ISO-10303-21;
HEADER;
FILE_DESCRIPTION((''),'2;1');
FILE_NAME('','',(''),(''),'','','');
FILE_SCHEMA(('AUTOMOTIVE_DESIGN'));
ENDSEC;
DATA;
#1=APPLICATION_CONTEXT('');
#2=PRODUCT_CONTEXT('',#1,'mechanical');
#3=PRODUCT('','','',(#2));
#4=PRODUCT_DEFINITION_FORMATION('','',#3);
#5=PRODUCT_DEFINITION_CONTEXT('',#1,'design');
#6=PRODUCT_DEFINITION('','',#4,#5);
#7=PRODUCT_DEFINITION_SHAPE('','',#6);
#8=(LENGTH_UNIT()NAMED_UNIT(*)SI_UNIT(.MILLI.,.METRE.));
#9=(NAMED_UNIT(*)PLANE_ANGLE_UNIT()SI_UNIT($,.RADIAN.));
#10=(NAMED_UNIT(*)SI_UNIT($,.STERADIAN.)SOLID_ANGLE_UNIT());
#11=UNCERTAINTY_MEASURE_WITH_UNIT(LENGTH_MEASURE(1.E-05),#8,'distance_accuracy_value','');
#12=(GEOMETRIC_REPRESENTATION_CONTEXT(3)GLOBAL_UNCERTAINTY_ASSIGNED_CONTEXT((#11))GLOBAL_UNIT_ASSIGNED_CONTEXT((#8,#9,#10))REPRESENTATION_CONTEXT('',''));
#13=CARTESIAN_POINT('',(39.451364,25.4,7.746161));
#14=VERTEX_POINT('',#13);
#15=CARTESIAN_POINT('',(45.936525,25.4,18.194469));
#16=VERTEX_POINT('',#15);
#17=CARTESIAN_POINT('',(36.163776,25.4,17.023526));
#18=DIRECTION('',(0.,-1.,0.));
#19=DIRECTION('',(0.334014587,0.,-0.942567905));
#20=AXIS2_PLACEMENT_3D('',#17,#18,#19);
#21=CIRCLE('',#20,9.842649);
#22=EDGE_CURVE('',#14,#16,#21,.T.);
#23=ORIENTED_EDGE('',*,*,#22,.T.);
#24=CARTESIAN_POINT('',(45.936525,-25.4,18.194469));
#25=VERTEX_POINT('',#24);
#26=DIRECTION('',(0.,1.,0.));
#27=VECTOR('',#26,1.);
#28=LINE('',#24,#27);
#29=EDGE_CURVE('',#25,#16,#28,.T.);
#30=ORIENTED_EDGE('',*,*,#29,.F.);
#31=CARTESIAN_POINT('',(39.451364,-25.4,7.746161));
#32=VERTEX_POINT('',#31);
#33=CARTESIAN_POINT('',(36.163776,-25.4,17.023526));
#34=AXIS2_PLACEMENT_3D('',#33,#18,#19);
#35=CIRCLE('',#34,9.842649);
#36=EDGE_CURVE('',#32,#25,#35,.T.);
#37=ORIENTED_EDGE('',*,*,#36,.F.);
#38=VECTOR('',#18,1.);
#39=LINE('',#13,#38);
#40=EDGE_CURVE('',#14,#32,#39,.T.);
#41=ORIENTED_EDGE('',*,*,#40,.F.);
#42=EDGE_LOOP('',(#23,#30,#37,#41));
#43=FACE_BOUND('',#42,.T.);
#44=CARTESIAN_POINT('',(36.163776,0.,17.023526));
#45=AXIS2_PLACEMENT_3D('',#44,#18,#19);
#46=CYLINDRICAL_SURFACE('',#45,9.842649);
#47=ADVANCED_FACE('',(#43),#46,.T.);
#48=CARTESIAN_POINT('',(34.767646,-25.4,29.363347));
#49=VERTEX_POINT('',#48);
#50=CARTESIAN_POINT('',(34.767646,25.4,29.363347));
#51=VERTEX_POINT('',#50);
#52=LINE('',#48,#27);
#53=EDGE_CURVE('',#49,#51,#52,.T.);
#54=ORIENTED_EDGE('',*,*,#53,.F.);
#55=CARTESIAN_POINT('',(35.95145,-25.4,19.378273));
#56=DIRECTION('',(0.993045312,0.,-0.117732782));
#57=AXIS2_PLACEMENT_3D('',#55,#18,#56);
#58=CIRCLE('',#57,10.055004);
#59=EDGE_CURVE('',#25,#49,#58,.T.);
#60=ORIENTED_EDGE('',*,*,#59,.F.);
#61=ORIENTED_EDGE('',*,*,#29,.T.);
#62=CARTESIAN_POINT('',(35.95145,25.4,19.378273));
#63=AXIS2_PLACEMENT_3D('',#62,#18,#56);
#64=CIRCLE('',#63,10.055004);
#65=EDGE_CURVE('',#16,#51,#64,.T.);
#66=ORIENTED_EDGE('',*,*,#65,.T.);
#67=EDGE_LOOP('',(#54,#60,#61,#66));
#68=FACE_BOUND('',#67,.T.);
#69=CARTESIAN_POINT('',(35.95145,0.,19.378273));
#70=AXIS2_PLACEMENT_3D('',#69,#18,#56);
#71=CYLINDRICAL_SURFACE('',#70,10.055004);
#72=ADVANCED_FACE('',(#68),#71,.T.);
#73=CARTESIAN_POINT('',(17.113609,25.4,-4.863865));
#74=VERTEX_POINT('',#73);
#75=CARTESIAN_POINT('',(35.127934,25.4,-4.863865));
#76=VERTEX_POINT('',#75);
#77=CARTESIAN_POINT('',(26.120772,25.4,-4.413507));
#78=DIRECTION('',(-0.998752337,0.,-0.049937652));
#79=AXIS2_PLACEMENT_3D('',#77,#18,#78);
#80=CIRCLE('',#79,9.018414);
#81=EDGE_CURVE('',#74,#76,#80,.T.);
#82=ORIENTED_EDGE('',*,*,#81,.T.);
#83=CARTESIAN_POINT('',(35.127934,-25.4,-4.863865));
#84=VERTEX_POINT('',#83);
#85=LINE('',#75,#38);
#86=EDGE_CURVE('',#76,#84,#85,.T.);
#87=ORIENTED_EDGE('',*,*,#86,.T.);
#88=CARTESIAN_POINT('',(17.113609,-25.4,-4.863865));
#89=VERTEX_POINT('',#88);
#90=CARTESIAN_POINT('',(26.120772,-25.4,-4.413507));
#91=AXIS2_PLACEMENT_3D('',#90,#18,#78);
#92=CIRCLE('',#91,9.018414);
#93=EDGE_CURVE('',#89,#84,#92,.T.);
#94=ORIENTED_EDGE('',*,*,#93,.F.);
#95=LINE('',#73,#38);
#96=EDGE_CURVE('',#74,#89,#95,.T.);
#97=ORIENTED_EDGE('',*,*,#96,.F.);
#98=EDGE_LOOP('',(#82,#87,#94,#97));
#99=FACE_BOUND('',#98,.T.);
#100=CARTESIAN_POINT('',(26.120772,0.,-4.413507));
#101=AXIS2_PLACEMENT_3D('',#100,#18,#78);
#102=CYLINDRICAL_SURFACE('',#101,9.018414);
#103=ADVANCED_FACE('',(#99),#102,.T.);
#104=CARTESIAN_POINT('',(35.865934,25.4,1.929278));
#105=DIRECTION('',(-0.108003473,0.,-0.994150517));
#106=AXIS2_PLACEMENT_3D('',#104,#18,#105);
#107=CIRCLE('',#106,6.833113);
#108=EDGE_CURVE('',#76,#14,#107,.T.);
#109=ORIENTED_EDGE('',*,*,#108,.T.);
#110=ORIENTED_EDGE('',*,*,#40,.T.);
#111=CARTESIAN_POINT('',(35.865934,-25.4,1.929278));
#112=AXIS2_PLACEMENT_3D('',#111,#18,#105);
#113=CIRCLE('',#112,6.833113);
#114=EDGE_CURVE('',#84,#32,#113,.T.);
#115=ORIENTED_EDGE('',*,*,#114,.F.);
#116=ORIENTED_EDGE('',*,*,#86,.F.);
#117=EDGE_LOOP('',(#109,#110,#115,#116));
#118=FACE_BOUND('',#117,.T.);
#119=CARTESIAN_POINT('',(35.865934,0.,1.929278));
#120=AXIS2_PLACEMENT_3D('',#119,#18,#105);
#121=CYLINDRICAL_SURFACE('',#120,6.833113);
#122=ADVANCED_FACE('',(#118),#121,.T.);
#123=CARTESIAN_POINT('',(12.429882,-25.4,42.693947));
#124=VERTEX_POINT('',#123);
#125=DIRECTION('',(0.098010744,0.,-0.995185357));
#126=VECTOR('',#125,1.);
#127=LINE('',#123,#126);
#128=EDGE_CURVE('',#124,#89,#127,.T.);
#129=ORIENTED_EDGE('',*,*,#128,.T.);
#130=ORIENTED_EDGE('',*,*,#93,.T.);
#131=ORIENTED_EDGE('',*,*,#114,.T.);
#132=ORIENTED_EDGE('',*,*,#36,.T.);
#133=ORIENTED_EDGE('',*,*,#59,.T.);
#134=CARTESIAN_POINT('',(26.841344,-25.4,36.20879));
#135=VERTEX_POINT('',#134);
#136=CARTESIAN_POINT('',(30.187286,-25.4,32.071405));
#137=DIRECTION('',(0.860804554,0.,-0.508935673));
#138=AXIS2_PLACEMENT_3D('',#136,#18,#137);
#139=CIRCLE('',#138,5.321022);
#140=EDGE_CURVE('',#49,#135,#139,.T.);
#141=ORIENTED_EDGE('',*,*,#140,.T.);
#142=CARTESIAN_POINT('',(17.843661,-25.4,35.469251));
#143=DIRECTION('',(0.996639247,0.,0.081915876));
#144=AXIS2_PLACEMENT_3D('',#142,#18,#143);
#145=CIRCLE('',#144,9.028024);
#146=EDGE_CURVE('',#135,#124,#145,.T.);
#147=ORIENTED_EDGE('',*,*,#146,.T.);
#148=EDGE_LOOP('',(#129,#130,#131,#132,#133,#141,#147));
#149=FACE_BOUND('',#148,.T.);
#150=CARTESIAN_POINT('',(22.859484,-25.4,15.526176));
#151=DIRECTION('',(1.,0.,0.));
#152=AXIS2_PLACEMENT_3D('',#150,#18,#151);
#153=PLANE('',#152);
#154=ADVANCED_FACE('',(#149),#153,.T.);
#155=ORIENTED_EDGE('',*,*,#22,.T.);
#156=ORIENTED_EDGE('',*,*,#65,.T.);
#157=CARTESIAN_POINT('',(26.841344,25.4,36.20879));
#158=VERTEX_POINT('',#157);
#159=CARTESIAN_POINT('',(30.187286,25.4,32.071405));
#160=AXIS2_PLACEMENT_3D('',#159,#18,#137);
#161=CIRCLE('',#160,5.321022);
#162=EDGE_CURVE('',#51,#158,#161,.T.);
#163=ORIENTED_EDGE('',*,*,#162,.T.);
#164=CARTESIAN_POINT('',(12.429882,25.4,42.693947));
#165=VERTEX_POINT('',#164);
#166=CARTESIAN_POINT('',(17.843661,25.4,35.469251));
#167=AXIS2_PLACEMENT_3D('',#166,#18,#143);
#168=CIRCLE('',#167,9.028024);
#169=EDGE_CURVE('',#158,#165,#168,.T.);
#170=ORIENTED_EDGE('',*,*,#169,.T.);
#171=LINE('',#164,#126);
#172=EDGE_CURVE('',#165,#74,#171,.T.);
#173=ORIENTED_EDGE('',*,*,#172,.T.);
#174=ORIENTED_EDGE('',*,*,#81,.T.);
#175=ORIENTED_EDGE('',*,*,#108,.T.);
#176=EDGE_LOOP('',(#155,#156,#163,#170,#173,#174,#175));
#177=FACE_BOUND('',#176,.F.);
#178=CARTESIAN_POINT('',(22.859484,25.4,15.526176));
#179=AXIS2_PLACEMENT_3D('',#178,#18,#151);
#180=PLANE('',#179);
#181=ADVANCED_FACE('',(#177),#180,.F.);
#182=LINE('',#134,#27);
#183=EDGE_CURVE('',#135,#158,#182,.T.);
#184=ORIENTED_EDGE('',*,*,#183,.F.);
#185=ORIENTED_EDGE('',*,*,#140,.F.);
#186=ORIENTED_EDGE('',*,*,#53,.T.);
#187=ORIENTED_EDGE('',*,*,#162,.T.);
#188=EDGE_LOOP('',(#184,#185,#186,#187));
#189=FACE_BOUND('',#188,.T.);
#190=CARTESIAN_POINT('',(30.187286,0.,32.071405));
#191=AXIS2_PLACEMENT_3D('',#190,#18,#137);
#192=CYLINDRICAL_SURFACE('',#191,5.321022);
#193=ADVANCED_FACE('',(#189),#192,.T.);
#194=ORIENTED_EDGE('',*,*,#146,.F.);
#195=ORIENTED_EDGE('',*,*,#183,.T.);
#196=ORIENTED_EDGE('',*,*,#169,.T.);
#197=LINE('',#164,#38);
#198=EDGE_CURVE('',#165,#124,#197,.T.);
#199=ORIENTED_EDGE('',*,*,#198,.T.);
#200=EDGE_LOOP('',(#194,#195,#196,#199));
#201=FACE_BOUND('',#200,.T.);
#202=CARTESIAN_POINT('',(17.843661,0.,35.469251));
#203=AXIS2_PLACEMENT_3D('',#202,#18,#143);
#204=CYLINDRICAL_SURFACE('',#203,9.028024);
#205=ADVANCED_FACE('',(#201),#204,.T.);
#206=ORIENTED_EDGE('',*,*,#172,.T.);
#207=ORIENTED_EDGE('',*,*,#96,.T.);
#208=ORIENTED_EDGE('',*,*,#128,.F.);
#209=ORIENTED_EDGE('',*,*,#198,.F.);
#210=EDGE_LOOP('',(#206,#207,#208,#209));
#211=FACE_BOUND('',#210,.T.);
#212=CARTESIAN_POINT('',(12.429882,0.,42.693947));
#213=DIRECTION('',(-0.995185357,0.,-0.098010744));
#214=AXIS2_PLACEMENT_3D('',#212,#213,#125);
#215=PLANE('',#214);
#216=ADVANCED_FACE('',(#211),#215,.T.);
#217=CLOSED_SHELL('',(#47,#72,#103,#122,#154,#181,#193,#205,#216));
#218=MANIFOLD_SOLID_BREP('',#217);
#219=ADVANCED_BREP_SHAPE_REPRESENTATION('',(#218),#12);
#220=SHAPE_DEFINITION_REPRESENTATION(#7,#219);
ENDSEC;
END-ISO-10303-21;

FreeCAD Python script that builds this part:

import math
import FreeCAD as App
import Part
import Sketcher
from FreeCAD import Vector
Q = App.Units.Quantity

doc = App.newDocument("Part")
body = doc.addObject("PartDesign::Body", "Body")

# Sketch on XZ plane
sketch1 = body.newObject("Sketcher::SketchObject", "Sketch")
sketch1.AttachmentSupport = (doc.getObject("XZ_Plane"), [""])
sketch1.MapMode = "FlatFace"
sketch1.addGeometry([
    Part.ArcOfCircle(Part.Circle(Vector(17.843661, 35.469251, 0), Vector(0, 0, 1), 9.028024), math.radians(4.698699), math.radians(126.845816)),  # 0
    Part.LineSegment(Vector(12.429882, 42.693947, 0), Vector(17.113609, -4.863865, 0)),  # 1
    Part.ArcOfCircle(Part.Circle(Vector(26.120772, -4.413507, 0), Vector(0, 0, 1), 9.018414), math.radians(-177.137593), math.radians(-2.862407)),  # 2
    Part.ArcOfCircle(Part.Circle(Vector(35.865934, 1.929278, 0), Vector(0, 0, 1), 6.833113), math.radians(-96.200237), math.radians(58.351009)),  # 3
    Part.ArcOfCircle(Part.Circle(Vector(36.163776, 17.023526, 0), Vector(0, 0, 1), 9.842649), math.radians(-70.487373), math.radians(6.832446)),  # 4
    Part.ArcOfCircle(Part.Circle(Vector(35.95145, 19.378273, 0), Vector(0, 0, 1), 10.055004), math.radians(-6.761273), math.radians(96.761278)),  # 5
    Part.ArcOfCircle(Part.Circle(Vector(30.187286, 32.071405, 0), Vector(0, 0, 1), 5.321022), math.radians(-30.592961), math.radians(128.962791)),  # 6
], False)
sketch1.addConstraint([
    Sketcher.Constraint("Coincident", 0, 2, 1, 1),
    Sketcher.Constraint("Coincident", 1, 2, 2, 1),
    Sketcher.Constraint("Coincident", 2, 2, 3, 1),
    Sketcher.Constraint("Coincident", 3, 2, 4, 1),
    Sketcher.Constraint("Coincident", 4, 2, 5, 1),
    Sketcher.Constraint("Coincident", 5, 2, 6, 1),
    Sketcher.Constraint("Coincident", 6, 2, 0, 1),
    Sketcher.Constraint("Radius", 4, 9.842649),
    Sketcher.Constraint("Radius", 0, 9.028024),
    Sketcher.Constraint("Radius", 2, 9.018414),
    Sketcher.Constraint("Radius", 3, 6.833113),
    Sketcher.Constraint("Radius", 5, 10.055004),
    Sketcher.Constraint("Radius", 6, 5.321022),
    Sketcher.Constraint("DistanceY", 4, 3, 4, 2, Q("0.0461001 in")),
    Sketcher.Constraint("DistanceX", 2, 2, 3, 3, 0.738),
    Sketcher.Constraint("DistanceX", 6, 2, 5, 2, 7.926302),
    Sketcher.Constraint("DistanceX", -1, 1, 0, 3, 17.843661),
    Sketcher.Constraint("DistanceY", -1, 1, 0, 3, 35.469251),
    Sketcher.Constraint("DistanceX", -1, 1, 2, 3, 26.120772),
    Sketcher.Constraint("DistanceY", -1, 1, 3, 3, 1.929278),
    Sketcher.Constraint("DistanceX", -1, 1, 5, 3, 35.95145),
    Sketcher.Constraint("DistanceX", -1, 1, 1, 2, 17.113609),
    Sketcher.Constraint("DistanceY", -1, 1, 3, 2, 7.746161),
    Sketcher.Constraint("DistanceY", -1, 1, 4, 2, 18.194469),
    Sketcher.Constraint("DistanceY", -1, 1, 6, 2, 36.20879),
    Sketcher.Constraint("DistanceY", 2, 3, 0, 3, 39.882758),
    Sketcher.Constraint("DistanceX", 0, 2, 0, 3, 5.413779),
])
pad1 = body.newObject("PartDesign::Pad", "Pad")
pad1.Profile = sketch1
pad1.Length = Q("2 in")
pad1.Midplane = True

doc.recompute()
